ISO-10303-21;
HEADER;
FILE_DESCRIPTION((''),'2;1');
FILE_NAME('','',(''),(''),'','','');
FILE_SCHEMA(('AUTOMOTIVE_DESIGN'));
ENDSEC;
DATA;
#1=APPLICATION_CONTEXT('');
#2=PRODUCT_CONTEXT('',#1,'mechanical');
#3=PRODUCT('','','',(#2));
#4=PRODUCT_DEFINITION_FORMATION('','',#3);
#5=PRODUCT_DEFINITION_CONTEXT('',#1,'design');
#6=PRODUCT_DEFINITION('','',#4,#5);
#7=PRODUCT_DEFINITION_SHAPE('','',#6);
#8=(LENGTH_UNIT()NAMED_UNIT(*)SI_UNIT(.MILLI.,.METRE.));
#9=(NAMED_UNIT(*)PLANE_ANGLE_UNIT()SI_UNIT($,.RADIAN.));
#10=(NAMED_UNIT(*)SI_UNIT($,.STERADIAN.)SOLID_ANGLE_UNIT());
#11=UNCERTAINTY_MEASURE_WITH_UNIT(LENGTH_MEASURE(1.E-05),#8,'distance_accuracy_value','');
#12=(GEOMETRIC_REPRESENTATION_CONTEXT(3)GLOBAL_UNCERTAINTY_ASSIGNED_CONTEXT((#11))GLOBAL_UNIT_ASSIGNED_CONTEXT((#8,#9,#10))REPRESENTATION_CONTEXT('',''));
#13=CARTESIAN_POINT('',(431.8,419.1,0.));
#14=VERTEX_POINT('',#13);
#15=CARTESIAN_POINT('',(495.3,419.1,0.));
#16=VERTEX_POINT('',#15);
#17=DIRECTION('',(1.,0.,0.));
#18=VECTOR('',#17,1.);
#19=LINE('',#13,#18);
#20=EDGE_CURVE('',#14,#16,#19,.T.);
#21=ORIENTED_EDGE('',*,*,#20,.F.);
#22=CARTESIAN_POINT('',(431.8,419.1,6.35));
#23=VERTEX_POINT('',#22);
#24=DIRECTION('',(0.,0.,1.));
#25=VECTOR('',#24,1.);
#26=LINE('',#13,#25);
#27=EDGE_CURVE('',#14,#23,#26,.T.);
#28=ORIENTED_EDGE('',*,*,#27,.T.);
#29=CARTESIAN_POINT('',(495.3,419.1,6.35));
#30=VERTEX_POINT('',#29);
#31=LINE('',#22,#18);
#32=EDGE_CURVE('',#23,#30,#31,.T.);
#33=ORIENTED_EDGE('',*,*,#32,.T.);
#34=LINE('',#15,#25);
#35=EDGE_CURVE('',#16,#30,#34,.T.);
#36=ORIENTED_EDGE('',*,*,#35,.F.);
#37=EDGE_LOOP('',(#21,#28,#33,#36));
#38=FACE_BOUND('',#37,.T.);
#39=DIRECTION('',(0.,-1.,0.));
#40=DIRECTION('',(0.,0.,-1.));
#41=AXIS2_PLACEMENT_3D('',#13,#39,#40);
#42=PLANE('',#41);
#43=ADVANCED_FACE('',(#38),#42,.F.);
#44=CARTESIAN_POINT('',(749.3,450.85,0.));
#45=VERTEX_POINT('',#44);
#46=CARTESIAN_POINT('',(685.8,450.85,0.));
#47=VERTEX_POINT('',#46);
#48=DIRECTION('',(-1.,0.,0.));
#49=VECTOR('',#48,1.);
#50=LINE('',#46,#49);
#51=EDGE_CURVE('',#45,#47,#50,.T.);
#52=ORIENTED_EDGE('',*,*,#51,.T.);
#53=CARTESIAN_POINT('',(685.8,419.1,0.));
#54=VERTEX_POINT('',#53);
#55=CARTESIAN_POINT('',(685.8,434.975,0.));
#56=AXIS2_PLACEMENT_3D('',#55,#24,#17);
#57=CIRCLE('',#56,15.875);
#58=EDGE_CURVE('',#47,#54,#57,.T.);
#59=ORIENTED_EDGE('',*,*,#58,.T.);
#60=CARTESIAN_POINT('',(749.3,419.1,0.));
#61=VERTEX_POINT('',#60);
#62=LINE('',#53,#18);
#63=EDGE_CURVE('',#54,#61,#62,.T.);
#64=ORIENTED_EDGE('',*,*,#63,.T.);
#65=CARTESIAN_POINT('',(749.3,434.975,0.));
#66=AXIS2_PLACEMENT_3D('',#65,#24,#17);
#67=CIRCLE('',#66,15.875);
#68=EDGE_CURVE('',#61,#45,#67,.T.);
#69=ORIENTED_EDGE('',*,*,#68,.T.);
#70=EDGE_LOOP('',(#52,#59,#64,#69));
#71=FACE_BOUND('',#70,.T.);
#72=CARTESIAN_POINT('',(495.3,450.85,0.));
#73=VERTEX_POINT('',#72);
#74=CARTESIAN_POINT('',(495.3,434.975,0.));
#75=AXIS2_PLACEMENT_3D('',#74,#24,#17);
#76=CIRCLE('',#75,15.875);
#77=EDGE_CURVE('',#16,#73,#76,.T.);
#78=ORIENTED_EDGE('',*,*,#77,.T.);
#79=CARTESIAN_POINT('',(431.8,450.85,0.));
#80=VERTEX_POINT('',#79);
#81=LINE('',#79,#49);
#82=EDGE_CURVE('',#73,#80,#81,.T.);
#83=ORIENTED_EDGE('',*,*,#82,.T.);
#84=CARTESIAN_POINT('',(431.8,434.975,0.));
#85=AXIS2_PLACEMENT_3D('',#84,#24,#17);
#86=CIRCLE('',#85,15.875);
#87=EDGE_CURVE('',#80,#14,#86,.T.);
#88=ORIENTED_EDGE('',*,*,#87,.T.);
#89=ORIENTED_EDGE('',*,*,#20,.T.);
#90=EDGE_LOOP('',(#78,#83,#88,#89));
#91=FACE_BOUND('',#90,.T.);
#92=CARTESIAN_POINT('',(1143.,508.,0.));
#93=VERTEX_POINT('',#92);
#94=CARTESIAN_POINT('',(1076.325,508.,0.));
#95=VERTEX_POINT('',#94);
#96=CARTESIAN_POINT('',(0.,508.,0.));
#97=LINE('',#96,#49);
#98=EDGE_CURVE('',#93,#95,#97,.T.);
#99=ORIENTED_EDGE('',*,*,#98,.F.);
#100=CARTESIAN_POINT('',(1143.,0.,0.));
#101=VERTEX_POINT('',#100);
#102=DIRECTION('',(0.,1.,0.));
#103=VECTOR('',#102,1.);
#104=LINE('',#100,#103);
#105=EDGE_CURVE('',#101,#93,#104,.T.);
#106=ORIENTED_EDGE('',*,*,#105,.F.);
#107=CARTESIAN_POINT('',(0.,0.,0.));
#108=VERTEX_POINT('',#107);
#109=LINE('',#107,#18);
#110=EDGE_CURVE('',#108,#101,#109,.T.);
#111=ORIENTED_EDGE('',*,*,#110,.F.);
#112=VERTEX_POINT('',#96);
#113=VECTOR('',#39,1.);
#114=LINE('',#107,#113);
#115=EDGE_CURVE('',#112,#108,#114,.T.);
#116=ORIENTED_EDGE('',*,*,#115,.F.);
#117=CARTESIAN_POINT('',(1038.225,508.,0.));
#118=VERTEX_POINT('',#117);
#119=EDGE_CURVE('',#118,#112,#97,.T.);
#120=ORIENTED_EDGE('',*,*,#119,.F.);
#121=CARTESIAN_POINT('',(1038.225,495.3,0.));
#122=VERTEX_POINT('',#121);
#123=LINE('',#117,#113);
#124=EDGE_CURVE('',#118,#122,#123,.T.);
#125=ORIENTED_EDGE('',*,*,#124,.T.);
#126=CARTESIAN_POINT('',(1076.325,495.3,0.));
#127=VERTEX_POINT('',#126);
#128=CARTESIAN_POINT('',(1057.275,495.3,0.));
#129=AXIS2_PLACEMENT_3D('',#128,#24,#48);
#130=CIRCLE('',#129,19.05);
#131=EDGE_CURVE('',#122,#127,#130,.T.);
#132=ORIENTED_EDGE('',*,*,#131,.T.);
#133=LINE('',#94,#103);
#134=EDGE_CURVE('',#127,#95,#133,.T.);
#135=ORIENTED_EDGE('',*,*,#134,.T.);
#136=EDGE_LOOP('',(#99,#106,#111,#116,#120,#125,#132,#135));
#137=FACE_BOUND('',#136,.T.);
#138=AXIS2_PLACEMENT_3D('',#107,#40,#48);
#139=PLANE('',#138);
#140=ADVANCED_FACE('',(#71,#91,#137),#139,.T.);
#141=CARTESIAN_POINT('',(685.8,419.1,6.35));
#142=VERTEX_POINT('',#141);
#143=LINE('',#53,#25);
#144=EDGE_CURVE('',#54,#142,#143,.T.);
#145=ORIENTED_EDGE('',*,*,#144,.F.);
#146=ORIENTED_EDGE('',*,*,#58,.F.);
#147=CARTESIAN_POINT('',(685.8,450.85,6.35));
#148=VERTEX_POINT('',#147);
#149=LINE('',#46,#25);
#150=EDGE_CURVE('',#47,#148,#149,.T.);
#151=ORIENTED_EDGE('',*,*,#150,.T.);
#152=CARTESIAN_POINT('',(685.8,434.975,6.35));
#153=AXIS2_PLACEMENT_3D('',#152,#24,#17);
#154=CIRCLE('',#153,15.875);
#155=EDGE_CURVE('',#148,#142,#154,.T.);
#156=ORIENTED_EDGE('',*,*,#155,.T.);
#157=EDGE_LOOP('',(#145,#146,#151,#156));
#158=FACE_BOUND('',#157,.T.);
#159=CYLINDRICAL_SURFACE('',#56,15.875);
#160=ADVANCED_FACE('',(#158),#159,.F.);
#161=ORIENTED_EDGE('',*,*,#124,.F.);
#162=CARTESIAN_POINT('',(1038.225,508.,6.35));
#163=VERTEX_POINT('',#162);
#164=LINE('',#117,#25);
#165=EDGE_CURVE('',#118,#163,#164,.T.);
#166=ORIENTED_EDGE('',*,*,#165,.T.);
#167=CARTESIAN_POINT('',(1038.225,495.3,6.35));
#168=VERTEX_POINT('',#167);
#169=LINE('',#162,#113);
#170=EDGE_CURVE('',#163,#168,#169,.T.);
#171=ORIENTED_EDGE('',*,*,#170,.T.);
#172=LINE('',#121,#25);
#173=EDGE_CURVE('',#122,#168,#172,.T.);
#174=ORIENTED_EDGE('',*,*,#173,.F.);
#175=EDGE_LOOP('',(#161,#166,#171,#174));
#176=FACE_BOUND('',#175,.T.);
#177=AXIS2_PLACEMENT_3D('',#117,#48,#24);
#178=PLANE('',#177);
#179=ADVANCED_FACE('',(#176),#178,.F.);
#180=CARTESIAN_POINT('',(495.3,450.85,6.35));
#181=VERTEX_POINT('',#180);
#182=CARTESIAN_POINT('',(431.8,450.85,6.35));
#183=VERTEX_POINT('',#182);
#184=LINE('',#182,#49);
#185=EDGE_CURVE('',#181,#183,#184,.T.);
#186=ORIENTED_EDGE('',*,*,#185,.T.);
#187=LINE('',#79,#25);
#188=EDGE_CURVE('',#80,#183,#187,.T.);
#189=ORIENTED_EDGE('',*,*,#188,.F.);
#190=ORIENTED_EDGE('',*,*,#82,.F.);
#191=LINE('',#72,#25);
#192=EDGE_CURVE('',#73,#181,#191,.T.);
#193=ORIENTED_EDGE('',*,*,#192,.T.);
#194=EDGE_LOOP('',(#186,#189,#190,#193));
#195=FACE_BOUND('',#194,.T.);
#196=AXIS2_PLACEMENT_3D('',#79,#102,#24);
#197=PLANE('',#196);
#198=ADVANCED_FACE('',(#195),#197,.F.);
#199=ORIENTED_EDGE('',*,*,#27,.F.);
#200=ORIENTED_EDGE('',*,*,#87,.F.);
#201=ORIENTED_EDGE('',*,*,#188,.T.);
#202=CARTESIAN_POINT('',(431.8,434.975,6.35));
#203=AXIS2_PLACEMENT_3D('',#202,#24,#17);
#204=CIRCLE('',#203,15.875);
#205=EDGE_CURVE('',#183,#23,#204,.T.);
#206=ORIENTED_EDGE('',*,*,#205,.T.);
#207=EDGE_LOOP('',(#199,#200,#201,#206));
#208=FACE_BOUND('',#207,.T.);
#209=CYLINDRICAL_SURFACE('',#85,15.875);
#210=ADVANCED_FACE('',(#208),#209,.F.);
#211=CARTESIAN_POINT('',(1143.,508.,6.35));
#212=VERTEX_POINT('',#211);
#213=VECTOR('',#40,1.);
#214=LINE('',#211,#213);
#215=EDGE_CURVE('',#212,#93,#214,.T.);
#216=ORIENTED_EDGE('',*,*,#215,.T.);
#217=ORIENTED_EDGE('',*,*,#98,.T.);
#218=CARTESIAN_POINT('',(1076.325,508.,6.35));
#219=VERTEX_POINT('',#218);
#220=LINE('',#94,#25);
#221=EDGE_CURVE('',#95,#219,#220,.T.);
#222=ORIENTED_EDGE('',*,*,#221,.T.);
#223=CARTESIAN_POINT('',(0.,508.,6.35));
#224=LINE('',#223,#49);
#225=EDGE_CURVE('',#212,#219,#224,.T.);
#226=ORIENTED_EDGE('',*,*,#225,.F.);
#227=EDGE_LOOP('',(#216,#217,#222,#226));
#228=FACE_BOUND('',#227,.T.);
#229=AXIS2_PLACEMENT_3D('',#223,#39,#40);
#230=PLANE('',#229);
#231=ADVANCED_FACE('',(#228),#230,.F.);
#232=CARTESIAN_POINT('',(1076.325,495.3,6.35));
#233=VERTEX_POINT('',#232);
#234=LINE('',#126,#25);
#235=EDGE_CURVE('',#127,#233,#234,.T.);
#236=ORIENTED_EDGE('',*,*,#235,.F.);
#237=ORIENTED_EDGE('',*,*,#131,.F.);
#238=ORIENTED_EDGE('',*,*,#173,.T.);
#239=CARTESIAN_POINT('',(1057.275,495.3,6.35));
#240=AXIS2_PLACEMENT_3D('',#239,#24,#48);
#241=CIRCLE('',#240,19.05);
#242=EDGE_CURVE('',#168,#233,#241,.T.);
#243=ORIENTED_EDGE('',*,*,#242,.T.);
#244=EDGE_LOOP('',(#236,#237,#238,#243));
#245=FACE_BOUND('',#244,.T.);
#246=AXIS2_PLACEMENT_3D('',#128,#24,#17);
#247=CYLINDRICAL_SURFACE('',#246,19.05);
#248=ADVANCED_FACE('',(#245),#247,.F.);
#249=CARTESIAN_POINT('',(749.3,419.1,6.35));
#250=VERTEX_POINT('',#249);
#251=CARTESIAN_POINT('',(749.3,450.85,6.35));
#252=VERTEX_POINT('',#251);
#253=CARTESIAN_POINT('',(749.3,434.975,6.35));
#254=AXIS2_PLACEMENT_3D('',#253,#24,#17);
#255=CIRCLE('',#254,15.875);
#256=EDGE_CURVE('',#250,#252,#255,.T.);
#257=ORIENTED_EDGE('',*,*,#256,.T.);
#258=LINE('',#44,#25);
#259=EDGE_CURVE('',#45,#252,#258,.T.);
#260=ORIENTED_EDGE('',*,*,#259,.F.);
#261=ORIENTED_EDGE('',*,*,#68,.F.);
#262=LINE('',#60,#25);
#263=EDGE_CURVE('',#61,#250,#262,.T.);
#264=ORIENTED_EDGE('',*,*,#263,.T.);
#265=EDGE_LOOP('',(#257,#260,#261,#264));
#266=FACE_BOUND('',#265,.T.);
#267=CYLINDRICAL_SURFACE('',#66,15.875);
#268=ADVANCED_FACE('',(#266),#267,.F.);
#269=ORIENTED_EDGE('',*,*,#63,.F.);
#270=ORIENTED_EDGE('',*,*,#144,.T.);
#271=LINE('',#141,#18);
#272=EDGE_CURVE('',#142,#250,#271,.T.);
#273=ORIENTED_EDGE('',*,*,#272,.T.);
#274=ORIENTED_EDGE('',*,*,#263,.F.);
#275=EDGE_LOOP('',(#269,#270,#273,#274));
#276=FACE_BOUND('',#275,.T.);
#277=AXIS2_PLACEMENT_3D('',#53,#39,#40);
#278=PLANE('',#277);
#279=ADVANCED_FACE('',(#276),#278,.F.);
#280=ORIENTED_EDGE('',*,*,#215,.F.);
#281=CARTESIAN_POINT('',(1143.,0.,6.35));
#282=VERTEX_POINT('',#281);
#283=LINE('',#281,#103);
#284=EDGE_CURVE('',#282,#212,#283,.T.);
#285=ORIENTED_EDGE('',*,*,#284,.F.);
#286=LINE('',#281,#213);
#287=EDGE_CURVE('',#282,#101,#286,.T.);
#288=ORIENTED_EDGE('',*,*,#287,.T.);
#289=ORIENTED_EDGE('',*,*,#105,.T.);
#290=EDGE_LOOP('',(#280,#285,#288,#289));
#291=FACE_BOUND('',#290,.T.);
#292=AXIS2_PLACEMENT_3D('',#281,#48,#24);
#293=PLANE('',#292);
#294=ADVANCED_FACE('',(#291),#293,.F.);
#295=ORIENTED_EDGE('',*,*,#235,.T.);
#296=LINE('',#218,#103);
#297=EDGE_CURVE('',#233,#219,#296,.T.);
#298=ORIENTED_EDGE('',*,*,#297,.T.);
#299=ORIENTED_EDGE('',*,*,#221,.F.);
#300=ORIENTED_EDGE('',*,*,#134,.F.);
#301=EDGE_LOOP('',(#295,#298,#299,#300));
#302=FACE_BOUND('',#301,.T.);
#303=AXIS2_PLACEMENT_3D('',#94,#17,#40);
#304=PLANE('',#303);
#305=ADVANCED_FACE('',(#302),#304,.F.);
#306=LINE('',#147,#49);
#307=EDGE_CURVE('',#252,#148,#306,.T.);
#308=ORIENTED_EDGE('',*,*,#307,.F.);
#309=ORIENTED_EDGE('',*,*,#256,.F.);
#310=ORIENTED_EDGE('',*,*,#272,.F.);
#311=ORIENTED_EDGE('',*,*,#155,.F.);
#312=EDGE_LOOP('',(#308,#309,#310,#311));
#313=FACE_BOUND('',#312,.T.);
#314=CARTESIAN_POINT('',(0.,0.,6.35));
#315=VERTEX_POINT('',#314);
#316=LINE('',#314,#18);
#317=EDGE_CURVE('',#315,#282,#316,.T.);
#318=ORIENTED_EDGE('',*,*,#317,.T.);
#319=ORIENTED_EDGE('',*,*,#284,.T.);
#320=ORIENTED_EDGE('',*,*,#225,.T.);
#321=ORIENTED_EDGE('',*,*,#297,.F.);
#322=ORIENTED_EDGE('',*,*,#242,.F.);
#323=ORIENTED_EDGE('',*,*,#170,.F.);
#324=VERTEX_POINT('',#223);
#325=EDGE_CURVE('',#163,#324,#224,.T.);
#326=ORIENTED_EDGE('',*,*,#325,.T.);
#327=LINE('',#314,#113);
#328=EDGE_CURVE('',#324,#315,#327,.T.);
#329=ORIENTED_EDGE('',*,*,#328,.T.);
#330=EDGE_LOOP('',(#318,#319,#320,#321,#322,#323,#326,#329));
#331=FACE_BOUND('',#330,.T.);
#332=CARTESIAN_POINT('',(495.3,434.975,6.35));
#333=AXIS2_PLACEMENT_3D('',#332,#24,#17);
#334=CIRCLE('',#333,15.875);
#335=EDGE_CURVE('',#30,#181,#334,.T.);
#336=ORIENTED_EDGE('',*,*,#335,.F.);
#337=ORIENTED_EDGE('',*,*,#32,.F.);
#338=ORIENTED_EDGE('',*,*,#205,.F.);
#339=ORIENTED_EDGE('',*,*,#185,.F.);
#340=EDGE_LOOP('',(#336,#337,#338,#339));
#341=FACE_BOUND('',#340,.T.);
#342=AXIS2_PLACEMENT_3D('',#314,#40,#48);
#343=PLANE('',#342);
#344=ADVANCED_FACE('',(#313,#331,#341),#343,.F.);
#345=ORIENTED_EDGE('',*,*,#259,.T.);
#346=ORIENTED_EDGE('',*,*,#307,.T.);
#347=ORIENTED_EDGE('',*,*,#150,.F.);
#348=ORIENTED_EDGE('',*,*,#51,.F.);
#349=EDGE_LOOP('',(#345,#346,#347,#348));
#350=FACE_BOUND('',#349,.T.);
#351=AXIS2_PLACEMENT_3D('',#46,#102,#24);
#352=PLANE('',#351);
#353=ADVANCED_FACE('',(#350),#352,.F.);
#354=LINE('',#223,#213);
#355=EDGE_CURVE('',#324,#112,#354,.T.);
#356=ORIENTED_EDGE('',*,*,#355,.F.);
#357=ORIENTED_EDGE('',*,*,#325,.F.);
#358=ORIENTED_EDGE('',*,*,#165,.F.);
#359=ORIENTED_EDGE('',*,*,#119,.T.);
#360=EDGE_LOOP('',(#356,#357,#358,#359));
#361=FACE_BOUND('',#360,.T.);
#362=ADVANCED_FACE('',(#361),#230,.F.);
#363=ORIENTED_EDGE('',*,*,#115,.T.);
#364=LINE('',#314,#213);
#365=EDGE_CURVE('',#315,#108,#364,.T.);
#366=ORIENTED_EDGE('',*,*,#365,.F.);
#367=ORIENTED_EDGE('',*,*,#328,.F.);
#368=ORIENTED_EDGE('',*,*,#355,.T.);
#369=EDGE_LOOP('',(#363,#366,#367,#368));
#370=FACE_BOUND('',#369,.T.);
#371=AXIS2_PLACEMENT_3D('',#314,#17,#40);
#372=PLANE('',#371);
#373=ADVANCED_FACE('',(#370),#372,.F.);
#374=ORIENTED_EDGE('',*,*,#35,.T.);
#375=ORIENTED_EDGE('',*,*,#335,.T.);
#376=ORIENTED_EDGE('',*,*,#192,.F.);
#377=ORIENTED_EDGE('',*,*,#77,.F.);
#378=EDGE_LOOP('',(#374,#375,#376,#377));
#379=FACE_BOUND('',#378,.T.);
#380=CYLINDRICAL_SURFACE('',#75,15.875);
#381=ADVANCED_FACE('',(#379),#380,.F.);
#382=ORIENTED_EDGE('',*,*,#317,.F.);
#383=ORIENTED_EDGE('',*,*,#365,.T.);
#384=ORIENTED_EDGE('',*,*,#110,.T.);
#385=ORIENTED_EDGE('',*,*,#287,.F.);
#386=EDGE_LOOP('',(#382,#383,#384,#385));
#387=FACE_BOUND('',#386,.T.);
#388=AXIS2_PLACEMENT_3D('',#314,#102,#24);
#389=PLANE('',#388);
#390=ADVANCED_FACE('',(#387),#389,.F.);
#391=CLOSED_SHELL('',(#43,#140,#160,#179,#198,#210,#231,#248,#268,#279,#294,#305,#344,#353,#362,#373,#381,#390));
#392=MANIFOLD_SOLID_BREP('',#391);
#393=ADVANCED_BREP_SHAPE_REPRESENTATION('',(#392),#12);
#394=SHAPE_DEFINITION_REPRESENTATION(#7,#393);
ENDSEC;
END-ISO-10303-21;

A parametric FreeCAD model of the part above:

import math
import FreeCAD as App
import Part
import Sketcher
Q = App.Units.Quantity


def add_polygon(sketch, points):
    """Adds a closed chain of lines whose ends are joined by coincident constraints."""
    first, n = sketch.GeometryCount, len(points)
    for a, b in zip(points, points[1:] + points[:1]):
        sketch.addGeometry(Part.LineSegment(App.Vector(*a, 0), App.Vector(*b, 0)), False)
    for i in range(n):
        sketch.addConstraint(Sketcher.Constraint("Coincident", first + i, 2, first + (i + 1) % n, 1))

doc = App.newDocument("Part")
body = doc.addObject("PartDesign::Body", "Body")

# Sketch on XY plane
sketch1 = body.newObject("Sketcher::SketchObject", "Sketch")
sketch1.AttachmentSupport = (doc.getObject("XY_Plane"), [""])
sketch1.MapMode = "FlatFace"
add_polygon(sketch1, [(0, 508), (0, 0), (1143, 0), (1143, 508)])  # lines 0-3
sketch1.addConstraint([
    Sketcher.Constraint("Vertical", 0),
    Sketcher.Constraint("Horizontal", 1),
    Sketcher.Constraint("Vertical", 2),
    Sketcher.Constraint("Horizontal", 3),
    Sketcher.Constraint("Coincident", 0, 2, -1, 1),
    Sketcher.Constraint("DistanceX", 1, 1, 1, 2, Q("45 in")),
    Sketcher.Constraint("DistanceY", 0, 2, 0, 1, Q("20 in")),
])
pad1 = body.newObject("PartDesign::Pad", "Pad")
pad1.Profile = sketch1
pad1.Length = Q("0.25 in")

# Sketch on XY plane
sketch2 = body.newObject("Sketcher::SketchObject", "Sketch001")
sketch2.AttachmentSupport = (doc.getObject("XY_Plane"), [""])
sketch2.MapMode = "FlatFace"
sketch2.AttachmentOffset = App.Placement(App.Vector(0, 0, 0.25 * 25.4), App.Rotation())
sketch2.addGeometry([
    Part.LineSegment(App.Vector(495, 451, 0), App.Vector(432, 451, 0)),  # 0
    Part.ArcOfCircle(Part.Circle(App.Vector(432, 435, 0), App.Vector(0, 0, 1), 16), math.radians(90), math.radians(270)),  # 1
    Part.LineSegment(App.Vector(432, 419, 0), App.Vector(495, 419, 0)),  # 2
    Part.ArcOfCircle(Part.Circle(App.Vector(495, 435, 0), App.Vector(0, 0, 1), 16), math.radians(-90), math.radians(90)),  # 3
    Part.LineSegment(App.Vector(749, 451, 0), App.Vector(686, 451, 0)),  # 4
    Part.ArcOfCircle(Part.Circle(App.Vector(686, 435, 0), App.Vector(0, 0, 1), 16), math.radians(90), math.radians(270)),  # 5
    Part.LineSegment(App.Vector(686, 419, 0), App.Vector(749, 419, 0)),  # 6
    Part.ArcOfCircle(Part.Circle(App.Vector(749, 435, 0), App.Vector(0, 0, 1), 16), math.radians(-90), math.radians(90)),  # 7
], False)
sketch2.addConstraint([
    Sketcher.Constraint("Tangent", 0, 2, 1, 1),
    Sketcher.Constraint("Tangent", 1, 2, 2, 1),
    Sketcher.Constraint("Tangent", 2, 2, 3, 1),
    Sketcher.Constraint("Tangent", 3, 2, 0, 1),
    Sketcher.Constraint("Tangent", 4, 2, 5, 1),
    Sketcher.Constraint("Tangent", 5, 2, 6, 1),
    Sketcher.Constraint("Tangent", 6, 2, 7, 1),
    Sketcher.Constraint("Tangent", 7, 2, 4, 1),
    Sketcher.Constraint("Horizontal", 0),
    Sketcher.Constraint("Horizontal", 2),
    Sketcher.Constraint("Horizontal", 4),
    Sketcher.Constraint("Horizontal", 6),
    Sketcher.Constraint("Equal", 3, 5),
    Sketcher.Constraint("Horizontal", 3, 3, 5, 3),
    Sketcher.Constraint("Equal", 2, 4),
    Sketcher.Constraint("DistanceX", 0, 2, 0, 1, Q("2.5 in")),
    Sketcher.Constraint("DistanceX", -1, 1, 1, 3, Q("17 in")),
    Sketcher.Constraint("DistanceX", -1, 1, 5, 3, Q("27 in")),
    Sketcher.Constraint("Radius", 1, Q("0.625 in")),
    Sketcher.Constraint("DistanceY", -1, 1, 1, 2, Q("16.5 in")),
])
pocket1 = body.newObject("PartDesign::Pocket", "Pocket")
pocket1.Profile = sketch2
pocket1.Type = "ThroughAll"

# Sketch on XY plane
sketch3 = body.newObject("Sketcher::SketchObject", "Sketch002")
sketch3.AttachmentSupport = (doc.getObject("XY_Plane"), [""])
sketch3.MapMode = "FlatFace"
sketch3.AttachmentOffset = App.Placement(App.Vector(0, 0, 0.25 * 25.4), App.Rotation())
sketch3.addGeometry([
    Part.LineSegment(App.Vector(1076, 508, 0), App.Vector(1038, 508, 0)),
    Part.LineSegment(App.Vector(1038, 508, 0), App.Vector(1038, 495, 0)),
    Part.ArcOfCircle(Part.Circle(App.Vector(1057, 495, 0), App.Vector(0, 0, 1), 19), math.radians(180), math.radians(360)),
    Part.LineSegment(App.Vector(1076, 495, 0), App.Vector(1076, 508, 0)),
], False)
sketch3.addConstraint([
    Sketcher.Constraint("Coincident", 0, 2, 1, 1),
    Sketcher.Constraint("Tangent", 1, 2, 2, 1),
    Sketcher.Constraint("Tangent", 2, 2, 3, 1),
    Sketcher.Constraint("Coincident", 3, 2, 0, 1),
    Sketcher.Constraint("Horizontal", 0),
    Sketcher.Constraint("Vertical", 1),
    Sketcher.Constraint("Vertical", 3),
    Sketcher.Constraint("Radius", 2, Q("0.75 in")),
    Sketcher.Constraint("DistanceY", 1, 2, 1, 1, Q("0.5 in")),
    Sketcher.Constraint("DistanceY", -1, 1, 0, 2, Q("20 in")),
    Sketcher.Constraint("DistanceX", -1, 1, 2, 3, Q("41.625 in")),
])
pocket2 = body.newObject("PartDesign::Pocket", "Pocket001")
pocket2.Profile = sketch3
pocket2.Type = "ThroughAll"

doc.recompute()
